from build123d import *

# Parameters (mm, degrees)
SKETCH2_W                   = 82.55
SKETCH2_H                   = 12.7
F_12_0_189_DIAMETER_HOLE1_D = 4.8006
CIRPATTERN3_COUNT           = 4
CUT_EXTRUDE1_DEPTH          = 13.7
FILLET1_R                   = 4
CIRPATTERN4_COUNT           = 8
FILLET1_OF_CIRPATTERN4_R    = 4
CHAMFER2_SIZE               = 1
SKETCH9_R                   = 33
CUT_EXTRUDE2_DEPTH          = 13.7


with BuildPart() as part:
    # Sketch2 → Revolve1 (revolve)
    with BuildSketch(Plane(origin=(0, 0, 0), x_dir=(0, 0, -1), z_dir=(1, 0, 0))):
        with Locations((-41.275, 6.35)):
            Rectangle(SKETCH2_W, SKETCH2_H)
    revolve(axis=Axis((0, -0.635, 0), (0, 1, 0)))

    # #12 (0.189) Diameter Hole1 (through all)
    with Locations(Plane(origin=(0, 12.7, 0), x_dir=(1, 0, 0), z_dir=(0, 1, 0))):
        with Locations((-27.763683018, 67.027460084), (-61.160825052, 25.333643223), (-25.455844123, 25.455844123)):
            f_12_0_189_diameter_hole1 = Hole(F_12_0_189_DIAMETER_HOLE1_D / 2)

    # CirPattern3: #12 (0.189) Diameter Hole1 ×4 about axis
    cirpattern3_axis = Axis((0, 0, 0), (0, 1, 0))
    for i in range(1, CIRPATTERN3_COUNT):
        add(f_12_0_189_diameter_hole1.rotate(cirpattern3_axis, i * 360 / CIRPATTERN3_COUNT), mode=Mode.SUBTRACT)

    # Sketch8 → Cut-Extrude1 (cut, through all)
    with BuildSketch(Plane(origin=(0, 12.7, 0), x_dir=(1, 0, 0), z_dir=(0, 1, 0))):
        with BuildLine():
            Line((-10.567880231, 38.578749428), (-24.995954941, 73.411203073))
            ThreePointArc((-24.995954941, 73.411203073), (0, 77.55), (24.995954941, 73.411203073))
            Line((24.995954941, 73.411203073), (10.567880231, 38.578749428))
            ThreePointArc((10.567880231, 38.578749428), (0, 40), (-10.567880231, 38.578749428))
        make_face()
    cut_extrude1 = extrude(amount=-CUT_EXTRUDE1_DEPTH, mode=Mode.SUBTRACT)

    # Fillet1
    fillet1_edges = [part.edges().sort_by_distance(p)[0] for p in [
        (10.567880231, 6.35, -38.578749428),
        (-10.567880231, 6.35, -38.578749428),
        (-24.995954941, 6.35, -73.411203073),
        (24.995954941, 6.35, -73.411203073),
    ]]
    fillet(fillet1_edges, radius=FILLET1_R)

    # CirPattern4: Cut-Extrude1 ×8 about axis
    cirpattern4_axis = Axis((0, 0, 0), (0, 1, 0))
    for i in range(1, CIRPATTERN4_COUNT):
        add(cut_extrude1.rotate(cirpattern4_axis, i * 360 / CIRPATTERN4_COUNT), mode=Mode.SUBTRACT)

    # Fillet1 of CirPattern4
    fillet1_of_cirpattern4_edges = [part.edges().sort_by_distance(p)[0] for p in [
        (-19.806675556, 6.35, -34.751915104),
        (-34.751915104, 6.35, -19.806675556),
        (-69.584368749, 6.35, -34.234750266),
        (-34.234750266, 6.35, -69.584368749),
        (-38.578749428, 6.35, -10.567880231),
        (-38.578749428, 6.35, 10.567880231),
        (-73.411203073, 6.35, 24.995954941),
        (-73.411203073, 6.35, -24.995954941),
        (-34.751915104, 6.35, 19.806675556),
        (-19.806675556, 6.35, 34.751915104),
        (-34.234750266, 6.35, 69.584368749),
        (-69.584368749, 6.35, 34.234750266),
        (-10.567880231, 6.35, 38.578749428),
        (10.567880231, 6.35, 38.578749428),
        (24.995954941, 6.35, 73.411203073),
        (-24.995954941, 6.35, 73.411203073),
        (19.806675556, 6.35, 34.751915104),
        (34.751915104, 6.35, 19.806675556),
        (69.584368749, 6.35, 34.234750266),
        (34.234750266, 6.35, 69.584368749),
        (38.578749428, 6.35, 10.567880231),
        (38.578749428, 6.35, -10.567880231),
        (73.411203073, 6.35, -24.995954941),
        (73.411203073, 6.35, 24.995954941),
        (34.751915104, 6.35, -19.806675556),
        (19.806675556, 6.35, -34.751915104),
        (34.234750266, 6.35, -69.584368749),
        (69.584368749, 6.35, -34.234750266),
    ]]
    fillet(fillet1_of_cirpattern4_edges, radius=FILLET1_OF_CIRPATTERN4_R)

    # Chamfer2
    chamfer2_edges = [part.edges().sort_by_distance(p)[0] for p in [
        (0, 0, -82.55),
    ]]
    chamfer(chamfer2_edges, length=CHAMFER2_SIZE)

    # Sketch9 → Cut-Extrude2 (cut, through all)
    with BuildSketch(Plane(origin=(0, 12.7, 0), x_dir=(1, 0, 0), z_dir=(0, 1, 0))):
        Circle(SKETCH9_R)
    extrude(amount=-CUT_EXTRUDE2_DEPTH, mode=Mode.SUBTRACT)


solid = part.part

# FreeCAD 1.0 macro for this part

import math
import FreeCAD as App
import Part
import Sketcher
from FreeCAD import Vector
Q = App.Units.Quantity


def edges_at(feature, points):
    """Names of the edges that pass closest to the given points."""
    edges = feature.Shape.Edges
    near = lambda p: min(range(len(edges)), key=lambda i: edges[i].distToShape(Part.Vertex(*p))[0])
    return sorted({f"Edge{near(p) + 1}" for p in points})

doc = App.newDocument("Part")
body = doc.addObject("PartDesign::Body", "Body")

sketch1 = body.newObject("Sketcher::SketchObject", "Sketch")
sketch1.AttachmentSupport = (doc.getObject("YZ_Plane"), [""])
sketch1.MapMode = "FlatFace"
sketch1.addGeometry([
    Part.LineSegment(Vector(13, 83, 0), Vector(0, 83, 0)),
    Part.LineSegment(Vector(0, 83, 0), Vector(0, 0, 0)),
    Part.LineSegment(Vector(0, 0, 0), Vector(13, 0, 0)),
    Part.LineSegment(Vector(13, 0, 0), Vector(13, 83, 0)),
], False)
sketch1.addConstraint([
    Sketcher.Constraint("Coincident", 0, 2, 1, 1),
    Sketcher.Constraint("Coincident", 1, 2, 2, 1),
    Sketcher.Constraint("Coincident", 2, 2, 3, 1),
    Sketcher.Constraint("Coincident", 3, 2, 0, 1),
    Sketcher.Constraint("Horizontal", 0),
    Sketcher.Constraint("Vertical", 1),
    Sketcher.Constraint("Horizontal", 2),
    Sketcher.Constraint("Vertical", 3),
    Sketcher.Constraint("Coincident", 1, 2, -1, 1),
    Sketcher.Constraint("DistanceX", 0, 2, 0, 1, 12.7),
    Sketcher.Constraint("DistanceY", 1, 2, 1, 1, 82.55),
])
revolution = body.newObject("PartDesign::Revolution", "Revolution")
revolution.Profile = sketch1
revolution.ReferenceAxis = (sketch1, ["H_Axis"])
revolution.Angle = 360

sketch2 = body.newObject("Sketcher::SketchObject", "Sketch001")
sketch2.AttachmentSupport = (doc.getObject("XZ_Plane"), [""])
sketch2.MapMode = "FlatFace"
sketch2.AttachmentOffset = App.Placement(Vector(0, 0, -12.7), App.Rotation())
sketch2.addGeometry([
    Part.Circle(Vector(-27.8, -67, 0), Vector(0, 0, 1), 2.4),
    Part.Circle(Vector(-61.2, -25.3, 0), Vector(0, 0, 1), 2.4),
    Part.Circle(Vector(-25.5, -25.5, 0), Vector(0, 0, 1), 2.4),
], False)
sketch2.addConstraint([
    Sketcher.Constraint("Equal", 0, 1),
    Sketcher.Constraint("Equal", 1, 2),
    Sketcher.Constraint("Diameter", 0, 4.8006),
    Sketcher.Constraint("DistanceY", 2, 3, 1, 3, 0.122201),
    Sketcher.Constraint("DistanceY", 0, 3, -1, 1, 67.02746),
    Sketcher.Constraint("DistanceX", 1, 3, 2, 3, 35.704981),
    Sketcher.Constraint("DistanceX", 0, 3, 2, 3, 2.307839),
    Sketcher.Constraint("DistanceX", 0, 3, -1, 1, 27.763683),
    Sketcher.Constraint("DistanceY", 1, 3, -1, 1, 25.333643),
])
doc.recompute()
hole = body.newObject("PartDesign::Hole", "Hole")
hole.Profile = sketch2
hole.ThreadType = "None"
hole.Diameter = 4.8006
hole.DepthType = "ThroughAll"
hole.Reversed = True
doc.recompute()

polarpattern = body.newObject("PartDesign::PolarPattern", "PolarPattern")
polarpattern.Originals = [hole]
polarpattern.Axis = (doc.getObject("Y_Axis"), [""])
polarpattern.Angle = 360
polarpattern.Occurrences = 4
body.Tip = polarpattern

sketch3 = body.newObject("Sketcher::SketchObject", "Sketch002")
sketch3.AttachmentSupport = (doc.getObject("XZ_Plane"), [""])
sketch3.MapMode = "FlatFace"
sketch3.AttachmentOffset = App.Placement(Vector(0, 0, -12.7), App.Rotation())
sketch3.addGeometry([
    Part.LineSegment(Vector(-25, -73, 0), Vector(-11, -39, 0)),
    Part.ArcOfCircle(Part.Circle(Vector(0, 0, 0), Vector(0, 0, 1), 40), math.radians(-105), math.radians(-75)),
    Part.LineSegment(Vector(11, -39, 0), Vector(25, -73, 0)),
    Part.ArcOfCircle(Part.Circle(Vector(0, 0, 0), Vector(0, 0, 1), 78), math.radians(-109), math.radians(-71)),
], False)
sketch3.addConstraint([
    Sketcher.Constraint("Coincident", 0, 2, 1, 1),
    Sketcher.Constraint("Coincident", 1, 2, 2, 1),
    Sketcher.Constraint("Coincident", 2, 2, 3, 2),
    Sketcher.Constraint("Coincident", 3, 1, 0, 1),
    Sketcher.Constraint("Coincident", 1, 3, -1, 1),
    Sketcher.Constraint("Coincident", 3, 3, -1, 1),
    Sketcher.Constraint("Horizontal", 0, 2, 1, 2),
    Sketcher.Constraint("Horizontal", 2, 2, 3, 1),
    Sketcher.Constraint("Radius", 1, 40.0),
    Sketcher.Constraint("Radius", 3, 77.55),
    Sketcher.Constraint("Angle", 0, Q("67.5 deg")),
    Sketcher.Constraint("DistanceX", 0, 2, -1, 1, 10.56788),
])
pocket1 = body.newObject("PartDesign::Pocket", "Pocket")
pocket1.Profile = sketch3
pocket1.Type = "ThroughAll"
pocket1.Reversed = True
doc.recompute()

fillet = body.newObject("PartDesign::Fillet", "Fillet")
fillet.Base = (pocket1, edges_at(pocket1, [
    (10.568, 6.35, -38.579),
    (-10.568, 6.35, -38.579),
    (-24.996, 6.35, -73.411),
    (24.996, 6.35, -73.411),
]))
fillet.Radius = 4
doc.recompute()

polarpattern2 = body.newObject("PartDesign::PolarPattern", "PolarPattern001")
polarpattern2.Originals = [pocket1]
polarpattern2.Axis = (doc.getObject("Y_Axis"), [""])
polarpattern2.Angle = 360
polarpattern2.Occurrences = 8
body.Tip = polarpattern2
doc.recompute()

fillet2 = body.newObject("PartDesign::Fillet", "Fillet001")
fillet2.Base = (polarpattern2, edges_at(polarpattern2, [
    (-19.807, 6.35, -34.752),
    (-34.752, 6.35, -19.807),
    (-69.584, 6.35, -34.235),
    (-34.235, 6.35, -69.584),
    (-38.579, 6.35, -10.568),
    (-38.579, 6.35, 10.568),
    (-73.411, 6.35, 24.996),
    (-73.411, 6.35, -24.996),
    (-34.752, 6.35, 19.807),
    (-19.807, 6.35, 34.752),
    (-34.235, 6.35, 69.584),
    (-69.584, 6.35, 34.235),
    (-10.568, 6.35, 38.579),
    (10.568, 6.35, 38.579),
    (24.996, 6.35, 73.411),
    (-24.996, 6.35, 73.411),
    (19.807, 6.35, 34.752),
    (34.752, 6.35, 19.807),
    (69.584, 6.35, 34.235),
    (34.235, 6.35, 69.584),
    (38.579, 6.35, 10.568),
    (38.579, 6.35, -10.568),
    (73.411, 6.35, -24.996),
    (73.411, 6.35, 24.996),
    (34.752, 6.35, -19.807),
    (19.807, 6.35, -34.752),
    (34.235, 6.35, -69.584),
    (69.584, 6.35, -34.235),
]))
fillet2.Radius = 4
doc.recompute()

chamfer = body.newObject("PartDesign::Chamfer", "Chamfer")
chamfer.Base = (fillet2, edges_at(fillet2, [(0, 0, -82.55)]))
chamfer.Size = 1

sketch4 = body.newObject("Sketcher::SketchObject", "Sketch003")
sketch4.AttachmentSupport = (doc.getObject("XZ_Plane"), [""])
sketch4.MapMode = "FlatFace"
sketch4.AttachmentOffset = App.Placement(Vector(0, 0, -12.7), App.Rotation())
sketch4.addGeometry(Part.Circle(Vector(0, 0, 0), Vector(0, 0, 1), 33), False)
sketch4.addConstraint([
    Sketcher.Constraint("Coincident", 0, 3, -1, 1),
    Sketcher.Constraint("Diameter", 0, 66.0),
])
pocket2 = body.newObject("PartDesign::Pocket", "Pocket001")
pocket2.Profile = sketch4
pocket2.Type = "ThroughAll"
pocket2.Reversed = True

doc.recompute()
